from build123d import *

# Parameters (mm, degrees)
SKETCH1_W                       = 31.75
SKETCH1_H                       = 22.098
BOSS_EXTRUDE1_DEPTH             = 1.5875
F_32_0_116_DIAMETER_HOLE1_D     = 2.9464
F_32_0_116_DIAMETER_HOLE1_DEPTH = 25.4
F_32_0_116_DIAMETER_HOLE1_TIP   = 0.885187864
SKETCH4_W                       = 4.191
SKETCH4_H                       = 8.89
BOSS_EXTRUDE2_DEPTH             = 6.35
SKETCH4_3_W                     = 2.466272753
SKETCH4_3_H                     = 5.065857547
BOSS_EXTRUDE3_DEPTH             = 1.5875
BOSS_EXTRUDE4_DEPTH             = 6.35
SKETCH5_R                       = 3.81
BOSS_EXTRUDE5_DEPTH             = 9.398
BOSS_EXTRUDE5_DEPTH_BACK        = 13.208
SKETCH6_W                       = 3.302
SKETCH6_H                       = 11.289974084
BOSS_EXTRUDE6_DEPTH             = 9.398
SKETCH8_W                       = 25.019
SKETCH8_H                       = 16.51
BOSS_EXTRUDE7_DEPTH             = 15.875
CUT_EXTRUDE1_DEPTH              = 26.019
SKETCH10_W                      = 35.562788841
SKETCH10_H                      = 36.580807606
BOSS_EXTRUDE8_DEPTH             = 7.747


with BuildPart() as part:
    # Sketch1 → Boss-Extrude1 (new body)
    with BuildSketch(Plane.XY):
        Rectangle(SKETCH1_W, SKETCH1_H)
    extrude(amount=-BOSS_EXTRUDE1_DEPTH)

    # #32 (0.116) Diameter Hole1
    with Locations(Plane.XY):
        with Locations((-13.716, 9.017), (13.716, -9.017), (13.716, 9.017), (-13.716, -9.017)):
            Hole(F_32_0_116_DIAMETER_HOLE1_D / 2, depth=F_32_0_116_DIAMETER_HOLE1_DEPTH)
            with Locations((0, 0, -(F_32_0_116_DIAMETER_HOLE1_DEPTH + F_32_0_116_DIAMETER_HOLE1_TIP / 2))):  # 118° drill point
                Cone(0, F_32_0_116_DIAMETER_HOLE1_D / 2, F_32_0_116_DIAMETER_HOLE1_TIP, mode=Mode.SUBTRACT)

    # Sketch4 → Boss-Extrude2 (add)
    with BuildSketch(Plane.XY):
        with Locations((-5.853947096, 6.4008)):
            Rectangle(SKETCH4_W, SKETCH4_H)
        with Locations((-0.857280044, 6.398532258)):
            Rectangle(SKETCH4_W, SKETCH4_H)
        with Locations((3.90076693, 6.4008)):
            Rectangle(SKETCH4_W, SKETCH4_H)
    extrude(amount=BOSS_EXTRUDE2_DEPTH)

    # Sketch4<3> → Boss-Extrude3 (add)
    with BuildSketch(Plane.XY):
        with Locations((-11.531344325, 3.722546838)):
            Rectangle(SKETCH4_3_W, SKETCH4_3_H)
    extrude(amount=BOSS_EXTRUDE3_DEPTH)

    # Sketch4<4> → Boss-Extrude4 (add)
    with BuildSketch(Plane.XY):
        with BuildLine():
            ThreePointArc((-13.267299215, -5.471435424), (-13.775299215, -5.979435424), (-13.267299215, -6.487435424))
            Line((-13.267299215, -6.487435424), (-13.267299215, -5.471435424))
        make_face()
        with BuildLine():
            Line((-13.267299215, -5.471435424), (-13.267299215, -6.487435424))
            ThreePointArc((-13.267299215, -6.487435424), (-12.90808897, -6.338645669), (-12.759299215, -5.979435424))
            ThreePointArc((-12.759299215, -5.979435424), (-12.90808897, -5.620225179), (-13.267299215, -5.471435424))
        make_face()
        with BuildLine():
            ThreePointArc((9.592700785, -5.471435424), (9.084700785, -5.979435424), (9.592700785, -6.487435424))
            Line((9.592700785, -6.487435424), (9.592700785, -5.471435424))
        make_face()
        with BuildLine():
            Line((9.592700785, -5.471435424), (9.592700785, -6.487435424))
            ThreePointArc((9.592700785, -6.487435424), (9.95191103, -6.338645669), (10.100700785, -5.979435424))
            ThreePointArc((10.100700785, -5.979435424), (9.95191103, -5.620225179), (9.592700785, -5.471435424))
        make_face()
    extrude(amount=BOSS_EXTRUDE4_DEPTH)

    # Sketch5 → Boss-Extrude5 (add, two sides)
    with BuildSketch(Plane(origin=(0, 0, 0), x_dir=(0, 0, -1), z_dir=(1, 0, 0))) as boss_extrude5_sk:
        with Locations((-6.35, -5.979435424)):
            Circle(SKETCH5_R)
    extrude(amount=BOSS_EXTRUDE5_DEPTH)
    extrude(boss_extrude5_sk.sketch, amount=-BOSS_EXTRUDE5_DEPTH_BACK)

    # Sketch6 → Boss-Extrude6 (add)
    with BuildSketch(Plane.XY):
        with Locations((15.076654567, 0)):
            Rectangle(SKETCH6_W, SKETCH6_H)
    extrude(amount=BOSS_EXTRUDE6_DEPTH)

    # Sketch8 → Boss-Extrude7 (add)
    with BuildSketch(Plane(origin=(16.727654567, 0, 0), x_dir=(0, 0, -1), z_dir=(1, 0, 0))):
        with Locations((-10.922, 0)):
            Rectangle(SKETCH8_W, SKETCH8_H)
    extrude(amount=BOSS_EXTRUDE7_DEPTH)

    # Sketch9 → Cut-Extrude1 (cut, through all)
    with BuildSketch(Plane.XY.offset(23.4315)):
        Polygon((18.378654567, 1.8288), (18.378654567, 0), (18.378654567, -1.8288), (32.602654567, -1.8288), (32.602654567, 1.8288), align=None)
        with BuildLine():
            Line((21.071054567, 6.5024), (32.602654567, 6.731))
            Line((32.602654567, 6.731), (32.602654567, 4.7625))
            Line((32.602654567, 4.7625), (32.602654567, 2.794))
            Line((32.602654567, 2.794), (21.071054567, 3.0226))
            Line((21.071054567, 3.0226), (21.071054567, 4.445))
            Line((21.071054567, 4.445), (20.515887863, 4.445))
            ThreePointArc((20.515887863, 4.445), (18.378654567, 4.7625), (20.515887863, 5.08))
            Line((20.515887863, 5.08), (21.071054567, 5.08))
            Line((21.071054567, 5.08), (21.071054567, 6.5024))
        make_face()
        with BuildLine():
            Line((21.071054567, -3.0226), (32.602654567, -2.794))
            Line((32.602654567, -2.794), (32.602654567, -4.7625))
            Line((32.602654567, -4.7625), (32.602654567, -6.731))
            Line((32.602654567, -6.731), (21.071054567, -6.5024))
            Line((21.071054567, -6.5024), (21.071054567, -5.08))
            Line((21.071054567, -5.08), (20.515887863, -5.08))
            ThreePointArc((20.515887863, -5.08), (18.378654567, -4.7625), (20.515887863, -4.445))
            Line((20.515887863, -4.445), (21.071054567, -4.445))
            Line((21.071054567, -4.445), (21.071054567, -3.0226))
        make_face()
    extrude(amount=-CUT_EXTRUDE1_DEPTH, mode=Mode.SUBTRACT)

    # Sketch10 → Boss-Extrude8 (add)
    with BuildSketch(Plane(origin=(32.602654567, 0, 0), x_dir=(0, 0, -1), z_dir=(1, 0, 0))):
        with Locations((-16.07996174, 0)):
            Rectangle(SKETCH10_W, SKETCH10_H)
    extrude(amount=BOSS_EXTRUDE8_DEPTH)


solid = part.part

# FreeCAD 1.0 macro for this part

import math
import FreeCAD as App
import Part
import Sketcher
from FreeCAD import Vector
Q = App.Units.Quantity

doc = App.newDocument("Part")
body = doc.addObject("PartDesign::Body", "Body")

# Sketch on XY plane
sketch1 = doc.addObject("Sketcher::SketchObject", "Sketch")
body.addObject(sketch1)
sketch1.AttachmentSupport = (doc.XY_Plane, [""])
sketch1.MapMode = "FlatFace"
sketch1.addGeometry([
    Part.LineSegment(Vector(-16, 11, 0), Vector(-16, -11, 0)),
    Part.LineSegment(Vector(-16, -11, 0), Vector(16, -11, 0)),
    Part.LineSegment(Vector(16, -11, 0), Vector(16, 11, 0)),
    Part.LineSegment(Vector(16, 11, 0), Vector(-16, 11, 0)),
], False)
sketch1.addConstraint([
    Sketcher.Constraint("Coincident", 0, 2, 1, 1),
    Sketcher.Constraint("Coincident", 1, 2, 2, 1),
    Sketcher.Constraint("Coincident", 2, 2, 3, 1),
    Sketcher.Constraint("Coincident", 3, 2, 0, 1),
    Sketcher.Constraint("Vertical", 0),
    Sketcher.Constraint("Horizontal", 1),
    Sketcher.Constraint("Vertical", 2),
    Sketcher.Constraint("Horizontal", 3),
    Sketcher.Constraint("Symmetric", 0, 2, 2, 2, -1, 1),
    Sketcher.Constraint("DistanceX", 1, 1, 1, 2, Q("1.25 in")),
    Sketcher.Constraint("DistanceY", 0, 2, 0, 1, Q("0.87 in")),
])
pad1 = doc.addObject("PartDesign::Pad", "Pad")
body.addObject(pad1)
pad1.Profile = sketch1
pad1.Length = Q("0.0625 in")
pad1.Reversed = True

# Sketch on XY plane
sketch2 = doc.addObject("Sketcher::SketchObject", "Sketch001")
body.addObject(sketch2)
sketch2.AttachmentSupport = (doc.XY_Plane, [""])
sketch2.MapMode = "FlatFace"
sketch2.addGeometry([
    Part.Circle(Vector(-13.7, 9, 0), Vector(0, 0, 1), 1.5),
    Part.Circle(Vector(13.7, -9, 0), Vector(0, 0, 1), 1.5),
    Part.Circle(Vector(13.7, 9, 0), Vector(0, 0, 1), 1.5),
    Part.Circle(Vector(-13.7, -9, 0), Vector(0, 0, 1), 1.5),
], False)
sketch2.addConstraint([
    Sketcher.Constraint("Equal", 0, 1),
    Sketcher.Constraint("Equal", 1, 2),
    Sketcher.Constraint("Equal", 2, 3),
    Sketcher.Constraint("Symmetric", 0, 3, 1, 3, -1, 1),
    Sketcher.Constraint("Symmetric", 2, 3, 3, 3, -1, 1),
    Sketcher.Constraint("Symmetric", 0, 3, 2, 3, -2),
    Sketcher.Constraint("Diameter", 0, Q("0.116 in")),
    Sketcher.Constraint("DistanceX", 0, 3, -1, 1, Q("0.54 in")),
    Sketcher.Constraint("DistanceY", 1, 3, 0, 3, Q("0.71 in")),
])
doc.recompute()
hole = doc.addObject("PartDesign::Hole", "Hole")
body.addObject(hole)
hole.Profile = sketch2
hole.ThreadType = "None"
hole.Diameter = Q("0.116 in")
hole.DepthType = "Dimension"
hole.Depth = Q("1 in")
hole.DrillPoint = "Angled"
hole.DrillPointAngle = 118

# Sketch on XY plane
sketch3 = doc.addObject("Sketcher::SketchObject", "Sketch002")
body.addObject(sketch3)
sketch3.AttachmentSupport = (doc.XY_Plane, [""])
sketch3.MapMode = "FlatFace"
sketch3.addGeometry([
    Part.LineSegment(Vector(-7.9, 10.8, 0), Vector(-7.9, 2, 0)),  # 0
    Part.LineSegment(Vector(-7.9, 2, 0), Vector(-3.8, 2, 0)),  # 1
    Part.LineSegment(Vector(-3.8, 2, 0), Vector(-3.8, 10.8, 0)),  # 2
    Part.LineSegment(Vector(-3.8, 10.8, 0), Vector(-7.9, 10.8, 0)),  # 3
    Part.LineSegment(Vector(-3, 10.8, 0), Vector(-3, 2, 0)),  # 4
    Part.LineSegment(Vector(-3, 2, 0), Vector(1.2, 2, 0)),  # 5
    Part.LineSegment(Vector(1.2, 2, 0), Vector(1.2, 10.8, 0)),  # 6
    Part.LineSegment(Vector(1.2, 10.8, 0), Vector(-3, 10.8, 0)),  # 7
    Part.LineSegment(Vector(1.8, 10.8, 0), Vector(1.8, 2, 0)),  # 8
    Part.LineSegment(Vector(1.8, 2, 0), Vector(6, 2, 0)),  # 9
    Part.LineSegment(Vector(6, 2, 0), Vector(6, 10.8, 0)),  # 10
    Part.LineSegment(Vector(6, 10.8, 0), Vector(1.8, 10.8, 0)),  # 11
], False)
sketch3.addConstraint([
    Sketcher.Constraint("Coincident", 0, 2, 1, 1),
    Sketcher.Constraint("Coincident", 1, 2, 2, 1),
    Sketcher.Constraint("Coincident", 2, 2, 3, 1),
    Sketcher.Constraint("Coincident", 3, 2, 0, 1),
    Sketcher.Constraint("Coincident", 4, 2, 5, 1),
    Sketcher.Constraint("Coincident", 5, 2, 6, 1),
    Sketcher.Constraint("Coincident", 6, 2, 7, 1),
    Sketcher.Constraint("Coincident", 7, 2, 4, 1),
    Sketcher.Constraint("Coincident", 8, 2, 9, 1),
    Sketcher.Constraint("Coincident", 9, 2, 10, 1),
    Sketcher.Constraint("Coincident", 10, 2, 11, 1),
    Sketcher.Constraint("Coincident", 11, 2, 8, 1),
    Sketcher.Constraint("Vertical", 0),
    Sketcher.Constraint("Horizontal", 1),
    Sketcher.Constraint("Vertical", 2),
    Sketcher.Constraint("Horizontal", 3),
    Sketcher.Constraint("Vertical", 4),
    Sketcher.Constraint("Horizontal", 5),
    Sketcher.Constraint("Vertical", 6),
    Sketcher.Constraint("Horizontal", 7),
    Sketcher.Constraint("Vertical", 8),
    Sketcher.Constraint("Horizontal", 9),
    Sketcher.Constraint("Vertical", 10),
    Sketcher.Constraint("Horizontal", 11),
    Sketcher.Constraint("Horizontal", 1, 2, 8, 2),
    Sketcher.Constraint("Horizontal", 3, 2, 10, 2),
    Sketcher.Constraint("Equal", 3, 5),
    Sketcher.Constraint("Equal", 7, 9),
    Sketcher.Constraint("Equal", 2, 4),
    Sketcher.Constraint("DistanceY", 0, 2, 0, 1, Q("0.35 in")),
    Sketcher.Constraint("DistanceX", 1, 1, 1, 2, Q("0.165 in")),
    Sketcher.Constraint("DistanceY", -1, 1, 0, 2, Q("0.077 in")),
    Sketcher.Constraint("DistanceX", 4, 2, -1, 1, 2.95278),
    Sketcher.Constraint("DistanceX", 0, 2, -1, 1, 7.949447),
    Sketcher.Constraint("DistanceY", -1, 1, 4, 2, 1.953532),
    Sketcher.Constraint("DistanceX", -1, 1, 8, 2, 1.805267),
])
pad2 = doc.addObject("PartDesign::Pad", "Pad001")
body.addObject(pad2)
pad2.Profile = sketch3
pad2.Length = Q("0.25 in")

# Sketch on XY plane
sketch4 = doc.addObject("Sketcher::SketchObject", "Sketch003")
body.addObject(sketch4)
sketch4.AttachmentSupport = (doc.XY_Plane, [""])
sketch4.MapMode = "FlatFace"
sketch4.addGeometry([
    Part.LineSegment(Vector(-12.8, 6.3, 0), Vector(-12.8, 1.2, 0)),
    Part.LineSegment(Vector(-12.8, 1.2, 0), Vector(-10.3, 1.2, 0)),
    Part.LineSegment(Vector(-10.3, 1.2, 0), Vector(-10.3, 6.3, 0)),
    Part.LineSegment(Vector(-10.3, 6.3, 0), Vector(-12.8, 6.3, 0)),
], False)
sketch4.addConstraint([
    Sketcher.Constraint("Coincident", 0, 2, 1, 1),
    Sketcher.Constraint("Coincident", 1, 2, 2, 1),
    Sketcher.Constraint("Coincident", 2, 2, 3, 1),
    Sketcher.Constraint("Coincident", 3, 2, 0, 1),
    Sketcher.Constraint("Vertical", 0),
    Sketcher.Constraint("Horizontal", 1),
    Sketcher.Constraint("Vertical", 2),
    Sketcher.Constraint("Horizontal", 3),
    Sketcher.Constraint("DistanceX", 1, 1, 1, 2, 2.466273),
    Sketcher.Constraint("DistanceY", 0, 2, 0, 1, 5.065858),
    Sketcher.Constraint("DistanceX", 0, 2, -1, 1, 12.764481),
    Sketcher.Constraint("DistanceY", -1, 1, 0, 2, 1.189618),
])
pad3 = doc.addObject("PartDesign::Pad", "Pad002")
body.addObject(pad3)
pad3.Profile = sketch4
pad3.Length = Q("0.0625 in")

# Sketch on XY plane
sketch5 = doc.addObject("Sketcher::SketchObject", "Sketch004")
body.addObject(sketch5)
sketch5.AttachmentSupport = (doc.XY_Plane, [""])
sketch5.MapMode = "FlatFace"
sketch5.addGeometry([
    Part.ArcOfCircle(Part.Circle(Vector(-13.3, -6, 0), Vector(0, 0, 1), 0.5), math.radians(90), math.radians(270)),  # 0
    Part.ArcOfCircle(Part.Circle(Vector(-13.3, -6, 0), Vector(0, 0, 1), 0.5), math.radians(-90), math.radians(0)),  # 1
    Part.ArcOfCircle(Part.Circle(Vector(-13.3, -6, 0), Vector(0, 0, 1), 0.5), math.radians(0), math.radians(90)),  # 2
    Part.ArcOfCircle(Part.Circle(Vector(9.6, -6, 0), Vector(0, 0, 1), 0.5), math.radians(90), math.radians(270)),  # 3
    Part.ArcOfCircle(Part.Circle(Vector(9.6, -6, 0), Vector(0, 0, 1), 0.5), math.radians(-90), math.radians(0)),  # 4
    Part.ArcOfCircle(Part.Circle(Vector(9.6, -6, 0), Vector(0, 0, 1), 0.5), math.radians(0), math.radians(90)),  # 5
], False)
sketch5.addConstraint([
    Sketcher.Constraint("Tangent", 0, 2, 1, 1),
    Sketcher.Constraint("Tangent", 1, 2, 2, 1),
    Sketcher.Constraint("Tangent", 2, 2, 0, 1),
    Sketcher.Constraint("Tangent", 3, 2, 4, 1),
    Sketcher.Constraint("Tangent", 4, 2, 5, 1),
    Sketcher.Constraint("Tangent", 5, 2, 3, 1),
    Sketcher.Constraint("Equal", 2, 3),
    Sketcher.Constraint("Horizontal", 2, 3, 3, 3),
    Sketcher.Constraint("Horizontal", 5, 3, 1, 2),
    Sketcher.Constraint("Horizontal", 1, 2, 4, 2),
    Sketcher.Constraint("Vertical", 2, 3, 0, 2),
    Sketcher.Constraint("Vertical", 0, 2, 2, 2),
    Sketcher.Constraint("Vertical", 5, 3, 3, 2),
    Sketcher.Constraint("Vertical", 3, 2, 5, 2),
    Sketcher.Constraint("Radius", 0, Q("0.02 in")),
    Sketcher.Constraint("DistanceX", 1, 3, 3, 3, Q("0.9 in")),
    Sketcher.Constraint("DistanceX", 0, 3, -1, 1, 13.267299),
    Sketcher.Constraint("DistanceY", 0, 3, -1, 1, 5.979435),
])
pad4 = doc.addObject("PartDesign::Pad", "Pad003")
body.addObject(pad4)
pad4.Profile = sketch5
pad4.Length = Q("0.25 in")

# Sketch on YZ plane
sketch6 = doc.addObject("Sketcher::SketchObject", "Sketch005")
body.addObject(sketch6)
sketch6.AttachmentSupport = (doc.YZ_Plane, [""])
sketch6.MapMode = "FlatFace"
sketch6.addGeometry(Part.Circle(Vector(-6, 6.3, 0), Vector(0, 0, 1), 3.8), False)
sketch6.addConstraint([
    Sketcher.Constraint("Diameter", 0, Q("0.3 in")),
    Sketcher.Constraint("DistanceY", -1, 1, 0, 3, Q("0.25 in")),
    Sketcher.Constraint("DistanceX", 0, 3, -1, 1, 5.979435),
])
pad5 = doc.addObject("PartDesign::Pad", "Pad004")
body.addObject(pad5)
pad5.Profile = sketch6
pad5.Type = "TwoLengths"
pad5.Length = Q("0.37 in")
pad5.Length2 = Q("0.52 in")

# Sketch on XY plane
sketch7 = doc.addObject("Sketcher::SketchObject", "Sketch006")
body.addObject(sketch7)
sketch7.AttachmentSupport = (doc.XY_Plane, [""])
sketch7.MapMode = "FlatFace"
sketch7.addGeometry([
    Part.LineSegment(Vector(13.4, 5.6, 0), Vector(13.4, -5.6, 0)),
    Part.LineSegment(Vector(13.4, -5.6, 0), Vector(16.7, -5.6, 0)),
    Part.LineSegment(Vector(16.7, -5.6, 0), Vector(16.7, 5.6, 0)),
    Part.LineSegment(Vector(16.7, 5.6, 0), Vector(13.4, 5.6, 0)),
], False)
sketch7.addConstraint([
    Sketcher.Constraint("Coincident", 0, 2, 1, 1),
    Sketcher.Constraint("Coincident", 1, 2, 2, 1),
    Sketcher.Constraint("Coincident", 2, 2, 3, 1),
    Sketcher.Constraint("Coincident", 3, 2, 0, 1),
    Sketcher.Constraint("Vertical", 0),
    Sketcher.Constraint("Horizontal", 1),
    Sketcher.Constraint("Vertical", 2),
    Sketcher.Constraint("Horizontal", 3),
    Sketcher.Constraint("DistanceX", 1, 1, 1, 2, Q("0.13 in")),
    Sketcher.Constraint("DistanceY", 0, 2, 0, 1, 11.289974),
    Sketcher.Constraint("DistanceX", -1, 1, 0, 2, 13.425655),
    Sketcher.Constraint("DistanceY", 0, 2, -1, 1, 5.644987),
])
pad6 = doc.addObject("PartDesign::Pad", "Pad005")
body.addObject(pad6)
pad6.Profile = sketch7
pad6.Length = Q("0.37 in")

# Sketch on YZ plane
sketch8 = doc.addObject("Sketcher::SketchObject", "Sketch007")
body.addObject(sketch8)
sketch8.AttachmentSupport = (doc.YZ_Plane, [""])
sketch8.MapMode = "FlatFace"
sketch8.AttachmentOffset = App.Placement(Vector(0, 0, 16.727655), App.Rotation())
sketch8.addGeometry([
    Part.LineSegment(Vector(8, 23, 0), Vector(-8, 23, 0)),
    Part.LineSegment(Vector(-8, 23, 0), Vector(-8, -2, 0)),
    Part.LineSegment(Vector(-8, -2, 0), Vector(8, -2, 0)),
    Part.LineSegment(Vector(8, -2, 0), Vector(8, 23, 0)),
], False)
sketch8.addConstraint([
    Sketcher.Constraint("Coincident", 0, 2, 1, 1),
    Sketcher.Constraint("Coincident", 1, 2, 2, 1),
    Sketcher.Constraint("Coincident", 2, 2, 3, 1),
    Sketcher.Constraint("Coincident", 3, 2, 0, 1),
    Sketcher.Constraint("Horizontal", 0),
    Sketcher.Constraint("Vertical", 1),
    Sketcher.Constraint("Horizontal", 2),
    Sketcher.Constraint("Vertical", 3),
    Sketcher.Constraint("DistanceX", 0, 2, 0, 1, Q("0.65 in")),
    Sketcher.Constraint("DistanceY", 1, 2, 1, 1, Q("0.985 in")),
    Sketcher.Constraint("DistanceX", 0, 2, -1, 1, Q("0.325 in")),
    Sketcher.Constraint("DistanceY", 1, 2, -1, 1, Q("0.0625 in")),
])
pad7 = doc.addObject("PartDesign::Pad", "Pad006")
body.addObject(pad7)
pad7.Profile = sketch8
pad7.Length = Q("0.625 in")

# Sketch on XY plane
sketch9 = doc.addObject("Sketcher::SketchObject", "Sketch008")
body.addObject(sketch9)
sketch9.AttachmentSupport = (doc.XY_Plane, [""])
sketch9.MapMode = "FlatFace"
sketch9.AttachmentOffset = App.Placement(Vector(0, 0, 0.9225 * 25.4), App.Rotation())
sketch9.addGeometry([
    Part.LineSegment(Vector(18.4, 1.8, 0), Vector(18.4, -1.8, 0)),  # 0
    Part.LineSegment(Vector(18.4, -1.8, 0), Vector(32.6, -1.8, 0)),  # 1
    Part.LineSegment(Vector(32.6, -1.8, 0), Vector(32.6, 1.8, 0)),  # 2
    Part.LineSegment(Vector(32.6, 1.8, 0), Vector(18.4, 1.8, 0)),  # 3
    Part.LineSegment(Vector(32.6, 6.7, 0), Vector(21.1, 6.5, 0)),  # 4
    Part.LineSegment(Vector(21.1, 6.5, 0), Vector(21.1, 5.1, 0)),  # 5
    Part.LineSegment(Vector(21.1, 5.1, 0), Vector(20.5, 5.1, 0)),  # 6
    Part.ArcOfCircle(Part.Circle(Vector(19.5, 4.8, 0), Vector(0, 0, 1), 1.1), math.radians(17), math.radians(343)),  # 7
    Part.LineSegment(Vector(20.5, 4.4, 0), Vector(21.1, 4.4, 0)),  # 8
    Part.LineSegment(Vector(21.1, 4.4, 0), Vector(21.1, 3, 0)),  # 9
    Part.LineSegment(Vector(21.1, 3, 0), Vector(32.6, 2.8, 0)),  # 10
    Part.LineSegment(Vector(32.6, 2.8, 0), Vector(32.6, 6.7, 0)),  # 11
    Part.LineSegment(Vector(32.6, -2.8, 0), Vector(21.1, -3, 0)),  # 12
    Part.LineSegment(Vector(21.1, -3, 0), Vector(21.1, -4.4, 0)),  # 13
    Part.LineSegment(Vector(21.1, -4.4, 0), Vector(20.5, -4.4, 0)),  # 14
    Part.ArcOfCircle(Part.Circle(Vector(19.5, -4.8, 0), Vector(0, 0, 1), 1.1), math.radians(17), math.radians(343)),  # 15
    Part.LineSegment(Vector(20.5, -5.1, 0), Vector(21.1, -5.1, 0)),  # 16
    Part.LineSegment(Vector(21.1, -5.1, 0), Vector(21.1, -6.5, 0)),  # 17
    Part.LineSegment(Vector(21.1, -6.5, 0), Vector(32.6, -6.7, 0)),  # 18
    Part.LineSegment(Vector(32.6, -6.7, 0), Vector(32.6, -2.8, 0)),  # 19
], False)
sketch9.addConstraint([
    Sketcher.Constraint("Coincident", 0, 2, 1, 1),
    Sketcher.Constraint("Coincident", 1, 2, 2, 1),
    Sketcher.Constraint("Coincident", 2, 2, 3, 1),
    Sketcher.Constraint("Coincident", 3, 2, 0, 1),
    Sketcher.Constraint("Coincident", 4, 2, 5, 1),
    Sketcher.Constraint("Coincident", 5, 2, 6, 1),
    Sketcher.Constraint("Coincident", 6, 2, 7, 1),
    Sketcher.Constraint("Coincident", 7, 2, 8, 1),
    Sketcher.Constraint("Coincident", 8, 2, 9, 1),
    Sketcher.Constraint("Coincident", 9, 2, 10, 1),
    Sketcher.Constraint("Coincident", 10, 2, 11, 1),
    Sketcher.Constraint("Coincident", 11, 2, 4, 1),
    Sketcher.Constraint("Coincident", 12, 2, 13, 1),
    Sketcher.Constraint("Coincident", 13, 2, 14, 1),
    Sketcher.Constraint("Coincident", 14, 2, 15, 1),
    Sketcher.Constraint("Coincident", 15, 2, 16, 1),
    Sketcher.Constraint("Coincident", 16, 2, 17, 1),
    Sketcher.Constraint("Coincident", 17, 2, 18, 1),
    Sketcher.Constraint("Coincident", 18, 2, 19, 1),
    Sketcher.Constraint("Coincident", 19, 2, 12, 1),
    Sketcher.Constraint("Vertical", 0),
    Sketcher.Constraint("Horizontal", 1),
    Sketcher.Constraint("Vertical", 2),
    Sketcher.Constraint("Horizontal", 3),
    Sketcher.Constraint("Vertical", 5),
    Sketcher.Constraint("Horizontal", 6),
    Sketcher.Constraint("Horizontal", 8),
    Sketcher.Constraint("Vertical", 9),
    Sketcher.Constraint("Vertical", 11),
    Sketcher.Constraint("Vertical", 13),
    Sketcher.Constraint("Horizontal", 14),
    Sketcher.Constraint("Horizontal", 16),
    Sketcher.Constraint("Vertical", 17),
    Sketcher.Constraint("Vertical", 19),
    Sketcher.Constraint("Equal", 7, 15),
    Sketcher.Constraint("Symmetric", 7, 3, 15, 3, -1),
    Sketcher.Constraint("Symmetric", 9, 2, 12, 2, -1),
    Sketcher.Constraint("Symmetric", 5, 2, 16, 2, -1),
    Sketcher.Constraint("Symmetric", 11, 2, 18, 2, -1),
    Sketcher.Constraint("Parallel", 4, 12),
    Sketcher.Constraint("Parallel", 10, 18),
    Sketcher.Constraint("Vertical", 6, 2, 7, 2),
    Sketcher.Constraint("Vertical", 5, 2, 8, 2),
    Sketcher.Constraint("Vertical", 2, 2, 10, 2),
    Sketcher.Constraint("Vertical", 7, 2, 14, 2),
    Sketcher.Constraint("Equal", 5, 9),
    Sketcher.Constraint("Equal", 13, 17),
    Sketcher.Constraint("Radius", 7, Q("0.043 in")),
    Sketcher.Constraint("DistanceX", 1, 1, 1, 2, Q("0.56 in")),
    Sketcher.Constraint("DistanceY", -1, 1, 5, 2, Q("0.2 in")),
    Sketcher.Constraint("DistanceY", 0, 2, 0, 1, Q("0.144 in")),
    Sketcher.Constraint("DistanceY", 5, 2, 5, 1, Q("0.056 in")),
    Sketcher.Constraint("DistanceY", 11, 1, 11, 2, Q("0.155 in")),
    Sketcher.Constraint("DistanceY", -1, 1, 10, 2, Q("0.11 in")),
    Sketcher.Constraint("DistanceY", 0, 2, -1, 1, Q("0.072 in")),
    Sketcher.Constraint("DistanceX", 0, 2, 15, 3, Q("0.043 in")),
    Sketcher.Constraint("DistanceX", 7, 3, 4, 2, Q("0.063 in")),
    Sketcher.Constraint("DistanceX", -1, 1, 7, 3, 19.470855),
])
pocket1 = doc.addObject("PartDesign::Pocket", "Pocket")
body.addObject(pocket1)
pocket1.Profile = sketch9
pocket1.Type = "ThroughAll"

# Sketch on YZ plane
sketch10 = doc.addObject("Sketcher::SketchObject", "Sketch009")
body.addObject(sketch10)
sketch10.AttachmentSupport = (doc.YZ_Plane, [""])
sketch10.MapMode = "FlatFace"
sketch10.AttachmentOffset = App.Placement(Vector(0, 0, 32.602655), App.Rotation())
sketch10.addGeometry([
    Part.LineSegment(Vector(18, 34, 0), Vector(-18, 34, 0)),
    Part.LineSegment(Vector(-18, 34, 0), Vector(-18, -2, 0)),
    Part.LineSegment(Vector(-18, -2, 0), Vector(18, -2, 0)),
    Part.LineSegment(Vector(18, -2, 0), Vector(18, 34, 0)),
], False)
sketch10.addConstraint([
    Sketcher.Constraint("Coincident", 0, 2, 1, 1),
    Sketcher.Constraint("Coincident", 1, 2, 2, 1),
    Sketcher.Constraint("Coincident", 2, 2, 3, 1),
    Sketcher.Constraint("Coincident", 3, 2, 0, 1),
    Sketcher.Constraint("Horizontal", 0),
    Sketcher.Constraint("Vertical", 1),
    Sketcher.Constraint("Horizontal", 2),
    Sketcher.Constraint("Vertical", 3),
    Sketcher.Constraint("DistanceY", 1, 2, 1, 1, 35.562789),
    Sketcher.Constraint("DistanceX", 0, 2, 0, 1, 36.580808),
    Sketcher.Constraint("DistanceX", 0, 2, -1, 1, 18.290404),
    Sketcher.Constraint("DistanceY", -1, 1, 0, 2, 33.861356),
])
pad8 = doc.addObject("PartDesign::Pad", "Pad007")
body.addObject(pad8)
pad8.Profile = sketch10
pad8.Length = Q("0.305 in")

doc.recompute()
